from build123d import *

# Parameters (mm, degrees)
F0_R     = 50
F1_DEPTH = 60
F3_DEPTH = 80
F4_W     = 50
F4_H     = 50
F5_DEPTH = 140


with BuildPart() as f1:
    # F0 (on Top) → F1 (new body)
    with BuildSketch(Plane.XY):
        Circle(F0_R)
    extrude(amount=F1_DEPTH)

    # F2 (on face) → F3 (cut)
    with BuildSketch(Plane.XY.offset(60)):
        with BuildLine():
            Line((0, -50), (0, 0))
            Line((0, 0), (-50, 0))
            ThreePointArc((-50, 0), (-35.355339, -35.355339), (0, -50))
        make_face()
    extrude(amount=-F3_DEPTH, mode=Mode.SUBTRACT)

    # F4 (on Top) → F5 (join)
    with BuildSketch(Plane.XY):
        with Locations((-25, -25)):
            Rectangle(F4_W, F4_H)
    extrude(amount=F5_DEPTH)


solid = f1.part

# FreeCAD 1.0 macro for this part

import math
import FreeCAD as App
import Part
import Sketcher

V = App.Vector
Q = App.Units.Quantity


def add_polygon(sketch, points):
    """Adds a closed chain of lines whose ends are joined by coincident constraints."""
    first, n = sketch.GeometryCount, len(points)
    for a, b in zip(points, points[1:] + points[:1]):
        sketch.addGeometry(Part.LineSegment(App.Vector(*a, 0), App.Vector(*b, 0)), False)
    for i in range(n):
        sketch.addConstraint(Sketcher.Constraint("Coincident", first + i, 2, first + (i + 1) % n, 1))

doc = App.newDocument("Part")
params = doc.addObject("Spreadsheet::Sheet", "Params")
for row, (alias, value) in enumerate([
    ("sketch1_diameter", "100 mm"),
    ("pad1_length", "60 mm"),
    ("sketch2_radius", "50 mm"),
    ("pocket1_length", "80 mm"),
    ("sketch3_width", "50 mm"),
    ("pad2_length", "140 mm"),
], start=1):
    params.set(f"A{row}", alias)
    params.set(f"B{row}", "=" + value)
    params.setAlias(f"B{row}", alias)

body = doc.addObject("PartDesign::Body", "Body")

# Sketch on XY plane
sketch1 = body.newObject("Sketcher::SketchObject", "Sketch")
sketch1.AttachmentSupport = (doc.getObject("XY_Plane"), [""])
sketch1.MapMode = "FlatFace"
sketch1.addGeometry(Part.Circle(V(0, 0, 0), V(0, 0, 1), 50), False)
sketch1.addConstraint([
    Sketcher.Constraint("Coincident", 0, 3, -1, 1),
    Sketcher.Constraint("Diameter", 0, Q("100 mm")),
])
sketch1.setExpression("Constraints[1]", "Params.sketch1_diameter")
pad1 = body.newObject("PartDesign::Pad", "Pad")
pad1.Profile = sketch1
pad1.setExpression("Length", "Params.pad1_length")

# Sketch on XY plane
sketch2 = body.newObject("Sketcher::SketchObject", "Sketch001")
sketch2.AttachmentSupport = (doc.getObject("XY_Plane"), [""])
sketch2.MapMode = "FlatFace"
sketch2.AttachmentOffset = App.Placement(V(0, 0, 60), App.Rotation())
sketch2.addGeometry([
    Part.LineSegment(V(0, -50, 0), V(0, 0, 0)),
    Part.LineSegment(V(0, 0, 0), V(-50, 0, 0)),
    Part.ArcOfCircle(Part.Circle(V(0, 0, 0), V(0, 0, 1), 50), math.radians(-180), math.radians(-90)),
], False)
sketch2.addConstraint([
    Sketcher.Constraint("Coincident", 0, 2, 1, 1),
    Sketcher.Constraint("Coincident", 1, 2, 2, 1),
    Sketcher.Constraint("Coincident", 2, 2, 0, 1),
    Sketcher.Constraint("Vertical", 0),
    Sketcher.Constraint("Horizontal", 1),
    Sketcher.Constraint("Coincident", 2, 3, -1, 1),
    Sketcher.Constraint("Coincident", 0, 2, -1, 1),
    Sketcher.Constraint("Radius", 2, Q("50 mm")),
])
sketch2.setExpression("Constraints[7]", "Params.sketch2_radius")
pocket1 = body.newObject("PartDesign::Pocket", "Pocket")
pocket1.Profile = sketch2
pocket1.setExpression("Length", "Params.pocket1_length")

# Sketch on XY plane
sketch3 = body.newObject("Sketcher::SketchObject", "Sketch002")
sketch3.AttachmentSupport = (doc.getObject("XY_Plane"), [""])
sketch3.MapMode = "FlatFace"
add_polygon(sketch3, [(-50, 0), (-50, -50), (0, -50), (0, 0)])  # lines 0-3
sketch3.addConstraint([
    Sketcher.Constraint("Vertical", 0),
    Sketcher.Constraint("Horizontal", 1),
    Sketcher.Constraint("Vertical", 2),
    Sketcher.Constraint("Horizontal", 3),
    Sketcher.Constraint("Coincident", 2, 2, -1, 1),
    Sketcher.Constraint("Equal", 3, 0),
    Sketcher.Constraint("DistanceX", 1, 1, 1, 2, Q("50 mm")),
])
sketch3.setExpression("Constraints[10]", "Params.sketch3_width")
pad2 = body.newObject("PartDesign::Pad", "Pad001")
pad2.Profile = sketch3
pad2.setExpression("Length", "Params.pad2_length")

doc.recompute()
